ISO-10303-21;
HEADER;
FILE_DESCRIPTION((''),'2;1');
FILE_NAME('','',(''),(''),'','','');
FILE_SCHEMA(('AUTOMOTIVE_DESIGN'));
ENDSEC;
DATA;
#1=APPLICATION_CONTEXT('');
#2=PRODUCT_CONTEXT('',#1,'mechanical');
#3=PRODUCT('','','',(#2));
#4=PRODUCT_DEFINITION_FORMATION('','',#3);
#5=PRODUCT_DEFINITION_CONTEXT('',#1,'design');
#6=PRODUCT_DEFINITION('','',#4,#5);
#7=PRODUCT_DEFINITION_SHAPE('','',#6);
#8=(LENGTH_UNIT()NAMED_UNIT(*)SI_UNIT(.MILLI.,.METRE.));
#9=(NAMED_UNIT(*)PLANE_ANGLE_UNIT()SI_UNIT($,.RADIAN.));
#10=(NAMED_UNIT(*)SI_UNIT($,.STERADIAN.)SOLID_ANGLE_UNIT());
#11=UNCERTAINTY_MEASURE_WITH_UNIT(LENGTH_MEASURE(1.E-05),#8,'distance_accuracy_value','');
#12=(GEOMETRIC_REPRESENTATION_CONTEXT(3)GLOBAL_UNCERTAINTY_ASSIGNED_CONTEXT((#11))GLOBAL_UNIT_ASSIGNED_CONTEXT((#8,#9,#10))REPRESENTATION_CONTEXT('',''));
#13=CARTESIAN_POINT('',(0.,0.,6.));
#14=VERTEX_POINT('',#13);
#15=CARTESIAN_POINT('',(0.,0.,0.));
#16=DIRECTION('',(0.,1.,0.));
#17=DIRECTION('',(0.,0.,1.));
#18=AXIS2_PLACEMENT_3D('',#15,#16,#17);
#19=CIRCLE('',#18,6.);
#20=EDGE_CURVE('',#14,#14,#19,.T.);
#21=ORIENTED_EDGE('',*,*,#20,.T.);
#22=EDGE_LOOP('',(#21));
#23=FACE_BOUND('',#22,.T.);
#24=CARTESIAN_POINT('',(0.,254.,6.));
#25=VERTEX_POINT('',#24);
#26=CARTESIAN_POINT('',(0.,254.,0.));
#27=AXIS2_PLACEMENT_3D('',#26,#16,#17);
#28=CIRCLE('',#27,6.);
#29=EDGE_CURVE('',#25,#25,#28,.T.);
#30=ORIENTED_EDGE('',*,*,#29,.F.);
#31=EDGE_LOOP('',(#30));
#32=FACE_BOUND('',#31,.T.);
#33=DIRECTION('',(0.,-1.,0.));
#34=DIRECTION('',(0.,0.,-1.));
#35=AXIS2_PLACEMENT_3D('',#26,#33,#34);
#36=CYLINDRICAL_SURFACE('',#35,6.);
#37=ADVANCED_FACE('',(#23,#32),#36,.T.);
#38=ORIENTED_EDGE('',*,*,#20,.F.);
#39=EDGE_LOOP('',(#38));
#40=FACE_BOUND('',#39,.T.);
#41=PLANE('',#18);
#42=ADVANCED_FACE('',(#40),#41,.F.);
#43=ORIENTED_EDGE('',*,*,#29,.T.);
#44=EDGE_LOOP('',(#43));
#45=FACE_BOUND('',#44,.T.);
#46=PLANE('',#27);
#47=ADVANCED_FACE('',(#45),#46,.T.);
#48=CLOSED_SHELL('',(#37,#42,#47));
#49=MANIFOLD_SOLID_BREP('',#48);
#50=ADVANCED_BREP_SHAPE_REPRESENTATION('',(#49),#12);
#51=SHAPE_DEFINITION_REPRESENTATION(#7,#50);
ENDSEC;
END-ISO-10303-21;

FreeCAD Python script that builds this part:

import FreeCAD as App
import Part
import Sketcher
from FreeCAD import Vector

doc = App.newDocument("Part")
body = doc.addObject("PartDesign::Body", "Body")

# Sketch on XZ plane
sketch1 = body.newObject("Sketcher::SketchObject", "Sketch")
sketch1.AttachmentSupport = (doc.getObject("XZ_Plane"), [""])
sketch1.MapMode = "FlatFace"
sketch1.addGeometry(Part.Circle(Vector(0, 0, 0), Vector(0, 0, 1), 6), False)
sketch1.addConstraint([
    Sketcher.Constraint("Coincident", 0, 3, -1, 1),
    Sketcher.Constraint("Diameter", 0, 12.0),
])
pad1 = body.newObject("PartDesign::Pad", "Pad")
pad1.Profile = sketch1
pad1.Length = 254
pad1.Reversed = True

doc.recompute()
